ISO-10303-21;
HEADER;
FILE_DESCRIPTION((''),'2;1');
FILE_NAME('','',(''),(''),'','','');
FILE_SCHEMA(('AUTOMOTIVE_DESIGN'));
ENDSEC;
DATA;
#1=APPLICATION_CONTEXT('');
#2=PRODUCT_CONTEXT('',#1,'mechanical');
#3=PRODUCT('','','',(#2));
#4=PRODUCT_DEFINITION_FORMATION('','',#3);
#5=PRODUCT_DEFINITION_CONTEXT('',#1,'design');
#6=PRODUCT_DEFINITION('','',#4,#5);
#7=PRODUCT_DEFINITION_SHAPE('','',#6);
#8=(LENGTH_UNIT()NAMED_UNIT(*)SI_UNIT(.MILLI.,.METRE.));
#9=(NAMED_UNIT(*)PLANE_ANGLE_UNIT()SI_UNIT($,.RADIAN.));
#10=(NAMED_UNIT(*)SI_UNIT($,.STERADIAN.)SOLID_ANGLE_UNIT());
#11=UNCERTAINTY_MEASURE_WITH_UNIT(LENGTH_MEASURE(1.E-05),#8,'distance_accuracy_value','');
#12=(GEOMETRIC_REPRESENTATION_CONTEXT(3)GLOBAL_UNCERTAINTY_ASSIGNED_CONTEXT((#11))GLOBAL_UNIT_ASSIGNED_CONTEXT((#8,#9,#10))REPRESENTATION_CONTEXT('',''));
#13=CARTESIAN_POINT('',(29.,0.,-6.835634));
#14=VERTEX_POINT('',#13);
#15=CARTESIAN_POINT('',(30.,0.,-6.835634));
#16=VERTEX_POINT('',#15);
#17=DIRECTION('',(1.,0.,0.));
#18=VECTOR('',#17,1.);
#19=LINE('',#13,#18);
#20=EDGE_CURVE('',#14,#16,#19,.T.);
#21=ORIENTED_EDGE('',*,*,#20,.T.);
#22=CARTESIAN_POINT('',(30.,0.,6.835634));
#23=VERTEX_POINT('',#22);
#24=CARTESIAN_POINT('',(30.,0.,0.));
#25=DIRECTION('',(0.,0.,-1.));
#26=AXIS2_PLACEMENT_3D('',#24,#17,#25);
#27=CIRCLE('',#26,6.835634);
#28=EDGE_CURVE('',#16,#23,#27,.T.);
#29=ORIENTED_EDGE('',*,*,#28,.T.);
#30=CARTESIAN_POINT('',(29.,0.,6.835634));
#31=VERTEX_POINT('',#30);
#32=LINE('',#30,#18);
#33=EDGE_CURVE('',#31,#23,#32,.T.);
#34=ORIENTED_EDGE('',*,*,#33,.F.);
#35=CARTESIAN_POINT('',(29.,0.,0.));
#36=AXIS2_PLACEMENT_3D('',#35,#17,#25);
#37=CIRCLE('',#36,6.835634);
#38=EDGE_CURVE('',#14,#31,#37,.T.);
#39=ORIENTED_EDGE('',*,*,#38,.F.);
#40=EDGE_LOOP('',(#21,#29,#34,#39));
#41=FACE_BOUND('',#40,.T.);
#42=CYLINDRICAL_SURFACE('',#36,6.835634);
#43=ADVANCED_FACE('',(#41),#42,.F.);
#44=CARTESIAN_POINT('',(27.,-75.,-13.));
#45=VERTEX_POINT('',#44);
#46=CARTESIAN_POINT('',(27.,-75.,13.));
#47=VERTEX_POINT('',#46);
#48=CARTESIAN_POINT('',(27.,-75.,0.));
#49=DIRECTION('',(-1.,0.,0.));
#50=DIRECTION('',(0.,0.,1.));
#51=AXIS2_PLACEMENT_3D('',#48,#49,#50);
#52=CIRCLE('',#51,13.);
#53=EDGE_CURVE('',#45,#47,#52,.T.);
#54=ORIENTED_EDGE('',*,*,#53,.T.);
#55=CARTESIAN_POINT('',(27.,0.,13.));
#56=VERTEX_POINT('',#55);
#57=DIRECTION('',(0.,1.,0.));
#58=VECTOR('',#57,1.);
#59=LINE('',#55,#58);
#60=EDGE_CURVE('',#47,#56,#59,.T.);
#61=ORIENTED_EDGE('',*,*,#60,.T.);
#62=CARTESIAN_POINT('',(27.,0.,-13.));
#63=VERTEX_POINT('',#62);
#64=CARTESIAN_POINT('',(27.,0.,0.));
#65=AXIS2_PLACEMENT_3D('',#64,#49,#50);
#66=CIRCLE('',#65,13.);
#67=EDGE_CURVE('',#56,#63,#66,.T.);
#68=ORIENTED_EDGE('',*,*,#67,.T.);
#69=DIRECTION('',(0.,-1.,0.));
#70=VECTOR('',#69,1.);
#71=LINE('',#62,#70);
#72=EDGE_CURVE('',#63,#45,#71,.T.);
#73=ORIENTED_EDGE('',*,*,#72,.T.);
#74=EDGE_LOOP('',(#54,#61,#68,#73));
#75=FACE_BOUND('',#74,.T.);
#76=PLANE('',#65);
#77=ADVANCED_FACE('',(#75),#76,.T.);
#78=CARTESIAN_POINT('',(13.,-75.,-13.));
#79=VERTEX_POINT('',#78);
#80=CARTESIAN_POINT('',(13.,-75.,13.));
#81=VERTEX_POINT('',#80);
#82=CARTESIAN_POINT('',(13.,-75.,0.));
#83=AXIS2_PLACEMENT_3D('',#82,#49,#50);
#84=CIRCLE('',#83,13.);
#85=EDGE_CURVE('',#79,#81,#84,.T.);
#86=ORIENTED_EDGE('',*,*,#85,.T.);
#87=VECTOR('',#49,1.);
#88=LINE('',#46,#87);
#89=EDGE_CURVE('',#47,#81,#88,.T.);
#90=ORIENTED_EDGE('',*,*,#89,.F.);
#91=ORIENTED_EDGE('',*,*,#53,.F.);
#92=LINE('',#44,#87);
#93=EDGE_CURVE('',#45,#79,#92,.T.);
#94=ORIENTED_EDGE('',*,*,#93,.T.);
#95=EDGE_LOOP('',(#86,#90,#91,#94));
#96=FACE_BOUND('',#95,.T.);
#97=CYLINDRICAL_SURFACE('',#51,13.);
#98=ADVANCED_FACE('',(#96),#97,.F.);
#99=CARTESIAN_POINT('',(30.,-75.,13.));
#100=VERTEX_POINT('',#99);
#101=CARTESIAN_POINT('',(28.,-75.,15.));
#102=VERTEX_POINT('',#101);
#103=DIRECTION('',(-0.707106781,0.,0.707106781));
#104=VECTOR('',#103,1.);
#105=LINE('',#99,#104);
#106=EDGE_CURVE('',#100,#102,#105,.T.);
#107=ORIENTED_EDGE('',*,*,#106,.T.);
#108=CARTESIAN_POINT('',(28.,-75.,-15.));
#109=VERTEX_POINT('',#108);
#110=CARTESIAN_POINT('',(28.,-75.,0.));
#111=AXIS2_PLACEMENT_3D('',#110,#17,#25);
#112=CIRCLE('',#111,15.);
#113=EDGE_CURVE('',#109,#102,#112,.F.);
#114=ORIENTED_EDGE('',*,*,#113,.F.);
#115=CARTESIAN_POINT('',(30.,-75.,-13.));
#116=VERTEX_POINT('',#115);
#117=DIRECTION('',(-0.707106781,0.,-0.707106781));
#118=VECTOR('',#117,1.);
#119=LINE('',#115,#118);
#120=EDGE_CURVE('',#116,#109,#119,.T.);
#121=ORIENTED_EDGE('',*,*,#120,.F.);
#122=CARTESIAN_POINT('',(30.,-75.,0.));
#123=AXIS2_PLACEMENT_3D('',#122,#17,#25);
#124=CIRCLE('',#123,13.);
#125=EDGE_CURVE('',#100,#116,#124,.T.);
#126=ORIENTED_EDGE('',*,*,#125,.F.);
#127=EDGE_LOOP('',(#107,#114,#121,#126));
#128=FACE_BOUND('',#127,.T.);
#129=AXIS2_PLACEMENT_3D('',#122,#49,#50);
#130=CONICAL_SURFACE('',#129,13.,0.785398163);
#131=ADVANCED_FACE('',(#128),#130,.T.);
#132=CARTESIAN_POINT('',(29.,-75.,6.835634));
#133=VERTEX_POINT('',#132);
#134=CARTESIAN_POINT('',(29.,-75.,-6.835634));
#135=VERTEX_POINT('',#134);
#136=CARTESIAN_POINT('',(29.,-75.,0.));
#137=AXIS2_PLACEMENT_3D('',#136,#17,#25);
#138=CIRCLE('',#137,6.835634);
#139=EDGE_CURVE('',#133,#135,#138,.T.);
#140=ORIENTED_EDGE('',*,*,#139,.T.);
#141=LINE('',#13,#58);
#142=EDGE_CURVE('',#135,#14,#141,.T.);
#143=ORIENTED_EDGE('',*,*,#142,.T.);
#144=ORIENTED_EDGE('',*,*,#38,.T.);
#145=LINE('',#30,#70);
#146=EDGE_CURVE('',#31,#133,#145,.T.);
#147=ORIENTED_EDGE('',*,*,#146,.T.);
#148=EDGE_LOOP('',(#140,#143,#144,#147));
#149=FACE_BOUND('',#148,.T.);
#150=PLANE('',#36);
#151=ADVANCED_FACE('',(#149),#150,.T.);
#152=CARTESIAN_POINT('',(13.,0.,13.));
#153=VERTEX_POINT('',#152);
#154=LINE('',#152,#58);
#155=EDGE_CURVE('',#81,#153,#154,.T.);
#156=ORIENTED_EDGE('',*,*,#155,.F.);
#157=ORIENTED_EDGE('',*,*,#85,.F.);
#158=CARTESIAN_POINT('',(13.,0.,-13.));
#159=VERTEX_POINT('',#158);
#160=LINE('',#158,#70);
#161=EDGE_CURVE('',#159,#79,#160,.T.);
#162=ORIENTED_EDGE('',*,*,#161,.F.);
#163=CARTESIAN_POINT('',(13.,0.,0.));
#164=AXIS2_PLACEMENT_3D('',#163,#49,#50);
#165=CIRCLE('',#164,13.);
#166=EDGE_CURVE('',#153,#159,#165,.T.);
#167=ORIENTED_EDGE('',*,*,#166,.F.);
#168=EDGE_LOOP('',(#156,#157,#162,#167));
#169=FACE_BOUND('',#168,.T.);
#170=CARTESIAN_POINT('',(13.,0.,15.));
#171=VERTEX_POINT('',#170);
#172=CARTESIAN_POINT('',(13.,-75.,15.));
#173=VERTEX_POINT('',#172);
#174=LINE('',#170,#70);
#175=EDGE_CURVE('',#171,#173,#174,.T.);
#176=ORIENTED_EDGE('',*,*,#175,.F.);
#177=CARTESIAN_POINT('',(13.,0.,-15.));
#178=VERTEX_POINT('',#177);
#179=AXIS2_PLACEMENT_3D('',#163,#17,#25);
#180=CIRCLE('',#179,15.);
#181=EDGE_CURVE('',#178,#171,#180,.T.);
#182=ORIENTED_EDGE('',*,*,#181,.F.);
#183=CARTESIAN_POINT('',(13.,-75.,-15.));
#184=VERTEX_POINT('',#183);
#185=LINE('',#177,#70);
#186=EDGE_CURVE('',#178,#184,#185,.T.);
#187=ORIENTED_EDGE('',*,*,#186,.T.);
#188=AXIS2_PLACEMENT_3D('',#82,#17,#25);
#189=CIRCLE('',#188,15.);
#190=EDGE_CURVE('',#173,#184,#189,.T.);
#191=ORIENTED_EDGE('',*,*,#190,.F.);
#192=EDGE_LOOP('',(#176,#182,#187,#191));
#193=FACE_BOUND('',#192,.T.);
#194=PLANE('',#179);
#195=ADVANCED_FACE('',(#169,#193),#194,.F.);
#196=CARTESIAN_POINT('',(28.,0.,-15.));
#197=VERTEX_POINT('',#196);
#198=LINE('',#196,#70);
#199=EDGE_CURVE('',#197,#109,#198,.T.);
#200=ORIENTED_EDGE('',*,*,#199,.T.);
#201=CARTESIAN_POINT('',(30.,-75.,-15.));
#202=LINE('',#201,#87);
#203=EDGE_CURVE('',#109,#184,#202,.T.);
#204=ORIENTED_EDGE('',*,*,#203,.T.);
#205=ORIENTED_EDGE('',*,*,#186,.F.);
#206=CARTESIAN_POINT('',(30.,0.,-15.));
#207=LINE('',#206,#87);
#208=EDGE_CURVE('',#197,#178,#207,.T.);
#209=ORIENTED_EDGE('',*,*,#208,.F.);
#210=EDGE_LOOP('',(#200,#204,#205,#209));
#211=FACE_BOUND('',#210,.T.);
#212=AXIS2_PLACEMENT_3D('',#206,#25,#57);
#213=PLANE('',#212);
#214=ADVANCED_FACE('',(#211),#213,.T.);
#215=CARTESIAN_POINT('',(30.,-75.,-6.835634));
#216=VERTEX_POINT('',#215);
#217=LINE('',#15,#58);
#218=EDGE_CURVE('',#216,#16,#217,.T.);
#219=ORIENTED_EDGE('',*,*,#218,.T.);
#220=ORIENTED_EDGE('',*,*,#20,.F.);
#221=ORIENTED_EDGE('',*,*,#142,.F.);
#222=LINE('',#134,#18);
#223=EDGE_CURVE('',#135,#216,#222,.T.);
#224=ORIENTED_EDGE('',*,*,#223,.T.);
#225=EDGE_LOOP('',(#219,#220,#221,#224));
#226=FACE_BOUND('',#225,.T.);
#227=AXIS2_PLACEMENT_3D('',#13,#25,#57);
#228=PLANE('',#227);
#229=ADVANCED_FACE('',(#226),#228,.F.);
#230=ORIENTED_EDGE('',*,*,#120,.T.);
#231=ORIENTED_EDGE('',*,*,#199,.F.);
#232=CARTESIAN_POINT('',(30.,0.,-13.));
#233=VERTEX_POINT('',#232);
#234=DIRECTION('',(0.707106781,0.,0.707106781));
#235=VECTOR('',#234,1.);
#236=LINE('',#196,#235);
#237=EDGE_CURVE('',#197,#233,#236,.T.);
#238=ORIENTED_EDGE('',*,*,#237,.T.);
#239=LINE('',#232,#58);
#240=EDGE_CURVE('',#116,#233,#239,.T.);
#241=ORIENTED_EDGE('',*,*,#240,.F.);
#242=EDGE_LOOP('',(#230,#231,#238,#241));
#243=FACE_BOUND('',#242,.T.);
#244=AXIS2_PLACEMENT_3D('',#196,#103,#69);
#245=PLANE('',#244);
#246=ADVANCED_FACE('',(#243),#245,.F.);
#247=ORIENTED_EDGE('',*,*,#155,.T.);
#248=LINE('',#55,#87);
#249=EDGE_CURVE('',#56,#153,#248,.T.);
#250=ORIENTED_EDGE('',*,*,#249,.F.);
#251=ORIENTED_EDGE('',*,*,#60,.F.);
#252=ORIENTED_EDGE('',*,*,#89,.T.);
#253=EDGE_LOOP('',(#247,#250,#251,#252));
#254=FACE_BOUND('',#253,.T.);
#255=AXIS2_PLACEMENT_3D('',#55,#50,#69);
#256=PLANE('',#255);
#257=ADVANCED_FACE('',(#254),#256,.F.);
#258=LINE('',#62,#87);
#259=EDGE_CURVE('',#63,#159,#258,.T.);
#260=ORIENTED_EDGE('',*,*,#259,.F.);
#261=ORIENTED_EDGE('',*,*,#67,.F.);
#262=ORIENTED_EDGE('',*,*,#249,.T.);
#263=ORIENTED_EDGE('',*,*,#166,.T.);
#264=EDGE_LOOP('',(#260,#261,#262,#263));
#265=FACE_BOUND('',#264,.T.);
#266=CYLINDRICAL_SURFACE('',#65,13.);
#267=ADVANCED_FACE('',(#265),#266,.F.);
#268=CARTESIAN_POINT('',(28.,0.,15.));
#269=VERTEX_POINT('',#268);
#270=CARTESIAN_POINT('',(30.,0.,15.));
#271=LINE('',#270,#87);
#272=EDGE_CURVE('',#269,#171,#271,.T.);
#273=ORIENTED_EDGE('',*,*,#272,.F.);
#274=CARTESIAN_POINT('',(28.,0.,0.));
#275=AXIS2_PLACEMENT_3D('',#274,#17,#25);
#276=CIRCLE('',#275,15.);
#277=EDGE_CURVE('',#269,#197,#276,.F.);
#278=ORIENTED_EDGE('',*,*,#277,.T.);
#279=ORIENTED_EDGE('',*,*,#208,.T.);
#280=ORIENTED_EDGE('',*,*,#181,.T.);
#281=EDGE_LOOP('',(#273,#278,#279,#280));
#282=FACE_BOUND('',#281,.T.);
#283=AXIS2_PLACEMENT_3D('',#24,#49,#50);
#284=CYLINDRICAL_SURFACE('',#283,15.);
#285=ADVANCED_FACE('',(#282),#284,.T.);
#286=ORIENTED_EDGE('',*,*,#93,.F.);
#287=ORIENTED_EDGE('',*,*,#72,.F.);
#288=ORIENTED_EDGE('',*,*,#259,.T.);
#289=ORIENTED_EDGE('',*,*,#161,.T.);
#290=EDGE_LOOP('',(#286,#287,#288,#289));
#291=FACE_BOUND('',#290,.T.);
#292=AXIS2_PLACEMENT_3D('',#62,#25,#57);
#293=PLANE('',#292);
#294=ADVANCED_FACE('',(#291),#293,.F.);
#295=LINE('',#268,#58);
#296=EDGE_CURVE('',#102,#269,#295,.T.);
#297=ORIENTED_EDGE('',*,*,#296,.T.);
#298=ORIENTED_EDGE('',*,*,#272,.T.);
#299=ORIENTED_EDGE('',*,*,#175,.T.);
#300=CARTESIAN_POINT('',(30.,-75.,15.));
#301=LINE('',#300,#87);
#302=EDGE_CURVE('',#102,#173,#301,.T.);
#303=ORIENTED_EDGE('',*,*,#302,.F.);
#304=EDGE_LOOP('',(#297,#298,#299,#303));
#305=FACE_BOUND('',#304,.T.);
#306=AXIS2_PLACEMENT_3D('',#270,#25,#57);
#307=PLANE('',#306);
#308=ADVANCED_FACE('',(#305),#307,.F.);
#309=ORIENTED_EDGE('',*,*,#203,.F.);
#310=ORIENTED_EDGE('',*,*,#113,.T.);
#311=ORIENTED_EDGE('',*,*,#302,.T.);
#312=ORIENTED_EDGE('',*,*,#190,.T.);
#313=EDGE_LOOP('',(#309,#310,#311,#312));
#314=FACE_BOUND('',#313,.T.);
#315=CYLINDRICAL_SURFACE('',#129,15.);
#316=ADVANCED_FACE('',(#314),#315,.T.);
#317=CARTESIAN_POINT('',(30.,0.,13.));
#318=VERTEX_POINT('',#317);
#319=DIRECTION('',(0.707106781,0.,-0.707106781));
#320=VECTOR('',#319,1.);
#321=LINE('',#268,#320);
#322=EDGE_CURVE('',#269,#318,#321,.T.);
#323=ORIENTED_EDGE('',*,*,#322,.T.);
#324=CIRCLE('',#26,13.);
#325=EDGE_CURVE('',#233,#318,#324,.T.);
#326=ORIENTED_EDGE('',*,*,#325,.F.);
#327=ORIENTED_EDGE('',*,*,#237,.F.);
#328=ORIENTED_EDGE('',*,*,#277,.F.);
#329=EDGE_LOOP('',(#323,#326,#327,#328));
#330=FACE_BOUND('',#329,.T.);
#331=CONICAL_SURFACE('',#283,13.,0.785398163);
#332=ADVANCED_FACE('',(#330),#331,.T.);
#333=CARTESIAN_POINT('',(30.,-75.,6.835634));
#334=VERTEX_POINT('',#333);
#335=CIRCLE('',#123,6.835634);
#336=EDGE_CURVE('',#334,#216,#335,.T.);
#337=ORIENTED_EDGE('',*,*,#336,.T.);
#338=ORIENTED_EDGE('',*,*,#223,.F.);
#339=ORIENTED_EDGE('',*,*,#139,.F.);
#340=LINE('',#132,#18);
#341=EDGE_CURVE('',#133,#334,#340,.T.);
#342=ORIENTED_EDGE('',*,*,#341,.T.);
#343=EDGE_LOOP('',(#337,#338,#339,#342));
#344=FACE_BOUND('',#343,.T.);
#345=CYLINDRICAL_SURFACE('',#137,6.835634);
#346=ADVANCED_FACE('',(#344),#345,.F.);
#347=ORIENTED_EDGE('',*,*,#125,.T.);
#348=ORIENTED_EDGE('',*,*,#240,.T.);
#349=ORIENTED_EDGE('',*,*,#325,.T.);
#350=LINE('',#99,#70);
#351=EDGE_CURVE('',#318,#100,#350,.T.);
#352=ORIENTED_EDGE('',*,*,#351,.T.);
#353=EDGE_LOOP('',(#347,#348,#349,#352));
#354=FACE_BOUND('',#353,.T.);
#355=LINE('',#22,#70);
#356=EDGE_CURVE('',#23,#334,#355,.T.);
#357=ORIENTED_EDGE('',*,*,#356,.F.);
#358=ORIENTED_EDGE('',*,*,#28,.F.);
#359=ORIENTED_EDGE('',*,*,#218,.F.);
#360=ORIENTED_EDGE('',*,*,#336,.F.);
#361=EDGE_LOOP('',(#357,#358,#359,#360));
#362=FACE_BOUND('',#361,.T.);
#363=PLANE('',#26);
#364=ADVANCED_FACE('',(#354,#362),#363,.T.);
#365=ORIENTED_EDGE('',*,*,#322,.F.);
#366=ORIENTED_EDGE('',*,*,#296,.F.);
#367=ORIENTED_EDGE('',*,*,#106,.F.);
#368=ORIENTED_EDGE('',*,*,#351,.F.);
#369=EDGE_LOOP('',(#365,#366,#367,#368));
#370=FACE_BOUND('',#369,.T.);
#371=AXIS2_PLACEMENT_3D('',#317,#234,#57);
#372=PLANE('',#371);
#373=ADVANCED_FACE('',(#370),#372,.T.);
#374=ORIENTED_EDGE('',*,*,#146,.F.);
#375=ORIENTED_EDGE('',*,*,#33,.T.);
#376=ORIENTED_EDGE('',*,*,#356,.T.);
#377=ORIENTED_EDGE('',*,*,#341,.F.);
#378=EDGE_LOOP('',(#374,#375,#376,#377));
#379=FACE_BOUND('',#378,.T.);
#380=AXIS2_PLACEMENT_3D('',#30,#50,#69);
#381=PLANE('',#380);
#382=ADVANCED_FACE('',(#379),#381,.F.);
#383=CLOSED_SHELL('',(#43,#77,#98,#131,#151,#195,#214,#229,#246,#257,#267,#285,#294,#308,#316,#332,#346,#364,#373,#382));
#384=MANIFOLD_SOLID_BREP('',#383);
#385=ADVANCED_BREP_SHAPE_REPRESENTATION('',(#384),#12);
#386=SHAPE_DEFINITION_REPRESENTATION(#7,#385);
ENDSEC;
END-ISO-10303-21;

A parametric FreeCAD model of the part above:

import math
import FreeCAD as App
import Part
import Sketcher
Q = App.Units.Quantity


def edges_at(feature, points):
    """Names of the edges that pass closest to the given points."""
    edges = feature.Shape.Edges
    near = lambda p: min(range(len(edges)), key=lambda i: edges[i].distToShape(Part.Vertex(*p))[0])
    return sorted({f"Edge{near(p) + 1}" for p in points})

doc = App.newDocument("Part")
body = doc.addObject("PartDesign::Body", "Body")

# Sketch on YZ plane
sketch1 = doc.addObject("Sketcher::SketchObject", "Sketch")
body.addObject(sketch1)
sketch1.AttachmentSupport = (doc.YZ_Plane, [""])
sketch1.MapMode = "FlatFace"
sketch1.addGeometry(Part.Circle(App.Vector(0, 0, 0), App.Vector(0, 0, 1), 4.9), False)
sketch1.addConstraint([
    Sketcher.Constraint("Coincident", 0, 3, -1, 1),
    Sketcher.Constraint("Diameter", 0, Q("9.8 mm")),
])
pad1 = doc.addObject("PartDesign::Pad", "Pad")
body.addObject(pad1)
pad1.Profile = sketch1
pad1.Length = 10

# Sketch on YZ plane
sketch2 = doc.addObject("Sketcher::SketchObject", "Sketch001")
body.addObject(sketch2)
sketch2.AttachmentSupport = (doc.YZ_Plane, [""])
sketch2.MapMode = "FlatFace"
sketch2.AttachmentOffset = App.Placement(App.Vector(0, 0, 10), App.Rotation())
sketch2.addGeometry([
    Part.LineSegment(App.Vector(-75, -15, 0), App.Vector(0, -15, 0)),
    Part.ArcOfCircle(Part.Circle(App.Vector(0, 0, 0), App.Vector(0, 0, 1), 15), math.radians(-90), math.radians(90)),
    Part.LineSegment(App.Vector(0, 15, 0), App.Vector(-75, 15, 0)),
    Part.ArcOfCircle(Part.Circle(App.Vector(-75, 0, 0), App.Vector(0, 0, 1), 15), math.radians(90), math.radians(270)),
], False)
sketch2.addConstraint([
    Sketcher.Constraint("Tangent", 0, 2, 1, 1),
    Sketcher.Constraint("Tangent", 1, 2, 2, 1),
    Sketcher.Constraint("Tangent", 2, 2, 3, 1),
    Sketcher.Constraint("Tangent", 3, 2, 0, 1),
    Sketcher.Constraint("Horizontal", 0),
    Sketcher.Constraint("Horizontal", 2),
    Sketcher.Constraint("Coincident", 1, 3, -1, 1),
    Sketcher.Constraint("Radius", 1, Q("15 mm")),
    Sketcher.Constraint("DistanceX", 0, 1, 0, 2, Q("75 mm")),
])
pad2 = doc.addObject("PartDesign::Pad", "Pad001")
body.addObject(pad2)
pad2.Profile = sketch2
pad2.Length = 20

# Sketch on YZ plane
sketch3 = doc.addObject("Sketcher::SketchObject", "Sketch002")
body.addObject(sketch3)
sketch3.AttachmentSupport = (doc.YZ_Plane, [""])
sketch3.MapMode = "FlatFace"
sketch3.AttachmentOffset = App.Placement(App.Vector(0, 0, 10), App.Rotation())
sketch3.addGeometry(Part.Circle(App.Vector(-75, 0, 0), App.Vector(0, 0, 1), 5), False)
sketch3.addConstraint([
    Sketcher.Constraint("PointOnObject", 0, 3, -1),
    Sketcher.Constraint("Diameter", 0, Q("10 mm")),
    Sketcher.Constraint("DistanceX", 0, 3, -1, 1, Q("75 mm")),
])
pad3 = doc.addObject("PartDesign::Pad", "Pad002")
body.addObject(pad3)
pad3.Profile = sketch3
pad3.Length = 20
pad3.Reversed = True
doc.recompute()

chamfer = doc.addObject("PartDesign::Chamfer", "Chamfer")
body.addObject(chamfer)
chamfer.Base = (pad3, edges_at(pad3, [
    (10, -37.5, 15),
    (10, -90, 0),
    (30, -37.5, -15),
    (10, 15, 0),
    (30, -37.5, 15),
    (30, -90, 0),
    (30, 15, 0),
    (10, -37.5, -15),
]))
chamfer.Size = 2

# Sketch on YZ plane
sketch4 = doc.addObject("Sketcher::SketchObject", "Sketch003")
body.addObject(sketch4)
sketch4.AttachmentSupport = (doc.YZ_Plane, [""])
sketch4.MapMode = "FlatFace"
sketch4.AttachmentOffset = App.Placement(App.Vector(0, 0, 30), App.Rotation())
sketch4.addGeometry([
    Part.LineSegment(App.Vector(-75, -7, 0), App.Vector(0, -7, 0)),
    Part.ArcOfCircle(Part.Circle(App.Vector(0, 0, 0), App.Vector(0, 0, 1), 7), math.radians(-90), math.radians(90)),
    Part.LineSegment(App.Vector(0, 7, 0), App.Vector(-75, 7, 0)),
    Part.ArcOfCircle(Part.Circle(App.Vector(-75, 0, 0), App.Vector(0, 0, 1), 7), math.radians(90), math.radians(270)),
], False)
sketch4.addConstraint([
    Sketcher.Constraint("Tangent", 0, 2, 1, 1),
    Sketcher.Constraint("Tangent", 1, 2, 2, 1),
    Sketcher.Constraint("Tangent", 2, 2, 3, 1),
    Sketcher.Constraint("Tangent", 3, 2, 0, 1),
    Sketcher.Constraint("Horizontal", 0),
    Sketcher.Constraint("Horizontal", 2),
    Sketcher.Constraint("Coincident", 1, 3, -1, 1),
    Sketcher.Constraint("DistanceX", 0, 1, 0, 2, Q("75 mm")),
    Sketcher.Constraint("Radius", 1, Q("6.835634 mm")),
])
pocket1 = doc.addObject("PartDesign::Pocket", "Pocket")
body.addObject(pocket1)
pocket1.Profile = sketch4
pocket1.Length = 1

# Sketch on YZ plane
sketch5 = doc.addObject("Sketcher::SketchObject", "Sketch004")
body.addObject(sketch5)
sketch5.AttachmentSupport = (doc.YZ_Plane, [""])
sketch5.MapMode = "FlatFace"
sketch5.AttachmentOffset = App.Placement(App.Vector(0, 0, -10), App.Rotation())
sketch5.addGeometry([
    Part.LineSegment(App.Vector(16, -91, 0), App.Vector(-206, -91, 0)),
    Part.LineSegment(App.Vector(-206, -91, 0), App.Vector(-206, 21, 0)),
    Part.LineSegment(App.Vector(-206, 21, 0), App.Vector(16, 21, 0)),
    Part.LineSegment(App.Vector(16, 21, 0), App.Vector(16, -91, 0)),
], False)
sketch5.addConstraint([
    Sketcher.Constraint("Coincident", 0, 2, 1, 1),
    Sketcher.Constraint("Coincident", 1, 2, 2, 1),
    Sketcher.Constraint("Coincident", 2, 2, 3, 1),
    Sketcher.Constraint("Coincident", 3, 2, 0, 1),
    Sketcher.Constraint("Horizontal", 0),
    Sketcher.Constraint("Vertical", 1),
    Sketcher.Constraint("Horizontal", 2),
    Sketcher.Constraint("Vertical", 3),
    Sketcher.Constraint("DistanceY", 1, 1, 1, 2, Q("112.21206 mm")),
    Sketcher.Constraint("DistanceX", 0, 2, 0, 1, Q("221.512042 mm")),
    Sketcher.Constraint("DistanceX", 0, 2, -1, 1, Q("205.575417 mm")),
    Sketcher.Constraint("DistanceY", 0, 2, -1, 1, Q("91.050962 mm")),
])
pocket2 = doc.addObject("PartDesign::Pocket", "Pocket001")
body.addObject(pocket2)
pocket2.Profile = sketch5
pocket2.Length = 23
pocket2.Reversed = True

# Sketch on YZ plane
sketch6 = doc.addObject("Sketcher::SketchObject", "Sketch005")
body.addObject(sketch6)
sketch6.AttachmentSupport = (doc.YZ_Plane, [""])
sketch6.MapMode = "FlatFace"
sketch6.AttachmentOffset = App.Placement(App.Vector(0, 0, 13), App.Rotation())
sketch6.addGeometry([
    Part.LineSegment(App.Vector(-75, 13, 0), App.Vector(0, 13, 0)),
    Part.ArcOfCircle(Part.Circle(App.Vector(0, 0, 0), App.Vector(0, 0, 1), 13), math.radians(-90), math.radians(90)),
    Part.LineSegment(App.Vector(0, -13, 0), App.Vector(-75, -13, 0)),
    Part.ArcOfCircle(Part.Circle(App.Vector(-75, 0, 0), App.Vector(0, 0, 1), 13), math.radians(90), math.radians(270)),
], False)
sketch6.addConstraint([
    Sketcher.Constraint("Tangent", 0, 2, 1, 2),
    Sketcher.Constraint("Tangent", 1, 1, 2, 1),
    Sketcher.Constraint("Tangent", 2, 2, 3, 2),
    Sketcher.Constraint("Tangent", 3, 1, 0, 1),
    Sketcher.Constraint("Horizontal", 0),
    Sketcher.Constraint("Horizontal", 2),
    Sketcher.Constraint("Coincident", 1, 3, -1, 1),
    Sketcher.Constraint("Radius", 1, Q("13 mm")),
    Sketcher.Constraint("DistanceX", 0, 1, 0, 2, Q("75 mm")),
])
pocket3 = doc.addObject("PartDesign::Pocket", "Pocket002")
body.addObject(pocket3)
pocket3.Profile = sketch6
pocket3.Length = 14
pocket3.Reversed = True

doc.recompute()
